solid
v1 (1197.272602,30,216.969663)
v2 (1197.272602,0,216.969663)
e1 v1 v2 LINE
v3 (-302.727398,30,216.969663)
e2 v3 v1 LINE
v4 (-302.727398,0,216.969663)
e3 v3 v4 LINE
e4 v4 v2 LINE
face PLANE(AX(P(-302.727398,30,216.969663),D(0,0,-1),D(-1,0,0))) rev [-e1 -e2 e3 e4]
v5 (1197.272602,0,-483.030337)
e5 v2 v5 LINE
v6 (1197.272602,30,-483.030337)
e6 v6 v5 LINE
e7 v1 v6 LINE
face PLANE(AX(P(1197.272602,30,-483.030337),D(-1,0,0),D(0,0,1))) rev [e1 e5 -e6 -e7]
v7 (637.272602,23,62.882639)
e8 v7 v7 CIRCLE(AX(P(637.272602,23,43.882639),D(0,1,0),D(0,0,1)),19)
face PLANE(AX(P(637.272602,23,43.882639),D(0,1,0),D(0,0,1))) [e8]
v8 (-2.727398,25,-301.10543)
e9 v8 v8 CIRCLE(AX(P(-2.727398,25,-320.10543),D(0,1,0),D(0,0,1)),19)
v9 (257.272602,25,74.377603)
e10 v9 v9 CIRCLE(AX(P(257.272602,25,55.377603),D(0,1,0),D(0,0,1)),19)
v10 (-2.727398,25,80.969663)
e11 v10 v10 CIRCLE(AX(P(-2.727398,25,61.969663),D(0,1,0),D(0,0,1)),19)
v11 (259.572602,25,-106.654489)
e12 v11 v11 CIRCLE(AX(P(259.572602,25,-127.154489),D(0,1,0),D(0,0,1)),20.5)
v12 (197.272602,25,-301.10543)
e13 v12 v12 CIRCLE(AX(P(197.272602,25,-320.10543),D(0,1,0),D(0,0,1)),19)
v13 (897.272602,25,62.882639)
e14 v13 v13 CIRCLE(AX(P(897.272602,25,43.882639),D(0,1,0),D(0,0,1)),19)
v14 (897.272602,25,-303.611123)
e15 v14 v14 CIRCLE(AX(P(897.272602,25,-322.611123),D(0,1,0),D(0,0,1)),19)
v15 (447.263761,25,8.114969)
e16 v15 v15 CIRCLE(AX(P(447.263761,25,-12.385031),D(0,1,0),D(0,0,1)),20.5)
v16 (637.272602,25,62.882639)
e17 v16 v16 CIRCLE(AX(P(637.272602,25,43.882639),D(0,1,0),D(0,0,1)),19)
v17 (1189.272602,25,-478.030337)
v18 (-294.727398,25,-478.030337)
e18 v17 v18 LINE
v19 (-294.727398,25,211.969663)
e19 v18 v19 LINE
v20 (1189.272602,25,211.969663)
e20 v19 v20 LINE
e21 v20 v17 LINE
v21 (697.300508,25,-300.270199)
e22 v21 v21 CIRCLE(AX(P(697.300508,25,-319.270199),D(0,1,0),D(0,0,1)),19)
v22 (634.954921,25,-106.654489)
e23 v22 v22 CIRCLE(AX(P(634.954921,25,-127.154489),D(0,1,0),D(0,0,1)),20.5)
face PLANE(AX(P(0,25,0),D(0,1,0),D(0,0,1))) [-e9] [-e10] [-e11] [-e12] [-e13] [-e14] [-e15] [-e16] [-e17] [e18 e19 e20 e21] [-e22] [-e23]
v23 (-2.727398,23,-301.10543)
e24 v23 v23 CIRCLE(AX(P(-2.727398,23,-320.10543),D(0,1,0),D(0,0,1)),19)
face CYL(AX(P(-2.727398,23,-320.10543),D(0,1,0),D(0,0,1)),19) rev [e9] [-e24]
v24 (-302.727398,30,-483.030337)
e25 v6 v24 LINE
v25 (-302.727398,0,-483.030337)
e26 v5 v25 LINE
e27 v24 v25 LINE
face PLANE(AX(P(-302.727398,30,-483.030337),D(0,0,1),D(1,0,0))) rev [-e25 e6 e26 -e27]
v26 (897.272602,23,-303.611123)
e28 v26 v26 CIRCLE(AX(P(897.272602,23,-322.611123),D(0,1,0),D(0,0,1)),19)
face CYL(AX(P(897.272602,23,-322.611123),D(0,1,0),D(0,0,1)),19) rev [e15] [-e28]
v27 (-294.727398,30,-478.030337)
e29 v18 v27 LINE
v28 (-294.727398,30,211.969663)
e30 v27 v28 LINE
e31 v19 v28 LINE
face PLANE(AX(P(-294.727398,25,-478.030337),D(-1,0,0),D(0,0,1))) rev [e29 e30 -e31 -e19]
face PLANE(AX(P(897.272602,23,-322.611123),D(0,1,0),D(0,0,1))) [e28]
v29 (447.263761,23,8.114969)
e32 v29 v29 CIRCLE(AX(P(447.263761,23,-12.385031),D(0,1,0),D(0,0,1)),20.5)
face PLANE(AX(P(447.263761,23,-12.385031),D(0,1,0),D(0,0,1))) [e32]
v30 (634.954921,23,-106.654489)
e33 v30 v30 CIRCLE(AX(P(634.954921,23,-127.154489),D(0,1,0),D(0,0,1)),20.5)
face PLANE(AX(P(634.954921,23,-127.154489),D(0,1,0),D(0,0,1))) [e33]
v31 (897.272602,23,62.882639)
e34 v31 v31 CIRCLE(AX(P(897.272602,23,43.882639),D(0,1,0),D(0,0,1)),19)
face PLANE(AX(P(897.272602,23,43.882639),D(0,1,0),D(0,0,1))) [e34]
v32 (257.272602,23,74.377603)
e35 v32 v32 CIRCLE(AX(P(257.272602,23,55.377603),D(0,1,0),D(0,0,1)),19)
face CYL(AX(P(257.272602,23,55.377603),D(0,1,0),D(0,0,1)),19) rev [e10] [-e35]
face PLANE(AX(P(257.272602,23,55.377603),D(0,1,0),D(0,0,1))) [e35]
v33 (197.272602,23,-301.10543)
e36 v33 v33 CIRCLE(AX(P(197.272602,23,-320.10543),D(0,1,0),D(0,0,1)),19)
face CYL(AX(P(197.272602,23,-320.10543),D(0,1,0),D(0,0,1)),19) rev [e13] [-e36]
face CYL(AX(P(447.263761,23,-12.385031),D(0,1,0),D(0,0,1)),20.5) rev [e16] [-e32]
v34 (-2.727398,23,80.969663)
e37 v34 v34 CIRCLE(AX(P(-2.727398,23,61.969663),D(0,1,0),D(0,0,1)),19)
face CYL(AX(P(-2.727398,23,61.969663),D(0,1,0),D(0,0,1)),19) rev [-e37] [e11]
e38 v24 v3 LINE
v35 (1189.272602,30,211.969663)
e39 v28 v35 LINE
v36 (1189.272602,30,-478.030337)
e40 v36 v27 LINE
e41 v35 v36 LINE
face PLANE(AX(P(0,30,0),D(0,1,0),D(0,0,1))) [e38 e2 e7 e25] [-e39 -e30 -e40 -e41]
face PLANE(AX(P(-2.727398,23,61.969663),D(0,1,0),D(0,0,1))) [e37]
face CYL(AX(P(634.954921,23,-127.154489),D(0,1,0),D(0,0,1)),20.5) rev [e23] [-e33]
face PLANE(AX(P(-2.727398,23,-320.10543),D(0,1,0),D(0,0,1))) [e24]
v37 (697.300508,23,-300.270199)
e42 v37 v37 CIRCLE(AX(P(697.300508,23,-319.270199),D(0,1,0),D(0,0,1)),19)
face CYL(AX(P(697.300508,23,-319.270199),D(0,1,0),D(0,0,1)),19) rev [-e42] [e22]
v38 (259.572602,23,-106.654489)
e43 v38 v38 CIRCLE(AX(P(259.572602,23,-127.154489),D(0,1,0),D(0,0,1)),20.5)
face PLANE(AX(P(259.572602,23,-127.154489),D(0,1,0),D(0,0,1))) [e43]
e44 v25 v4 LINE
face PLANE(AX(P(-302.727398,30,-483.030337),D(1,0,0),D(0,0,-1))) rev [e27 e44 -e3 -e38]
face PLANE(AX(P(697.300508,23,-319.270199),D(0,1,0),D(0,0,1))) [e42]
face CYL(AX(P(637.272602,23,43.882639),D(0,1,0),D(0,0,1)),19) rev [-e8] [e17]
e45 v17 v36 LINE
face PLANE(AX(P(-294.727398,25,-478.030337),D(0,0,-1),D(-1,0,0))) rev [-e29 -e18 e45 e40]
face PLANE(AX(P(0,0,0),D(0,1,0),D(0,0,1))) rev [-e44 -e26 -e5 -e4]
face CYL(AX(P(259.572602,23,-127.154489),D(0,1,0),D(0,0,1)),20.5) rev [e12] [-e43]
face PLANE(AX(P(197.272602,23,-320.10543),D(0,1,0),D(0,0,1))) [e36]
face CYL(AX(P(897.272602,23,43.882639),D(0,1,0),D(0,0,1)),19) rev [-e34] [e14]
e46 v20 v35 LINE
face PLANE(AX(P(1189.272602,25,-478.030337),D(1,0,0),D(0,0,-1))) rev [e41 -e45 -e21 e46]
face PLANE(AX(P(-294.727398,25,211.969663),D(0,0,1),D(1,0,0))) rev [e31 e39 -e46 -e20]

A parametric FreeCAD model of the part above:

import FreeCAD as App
import Part
import Sketcher

V = App.Vector


def add_polygon(sketch, points):
    """Adds a closed chain of lines whose ends are joined by coincident constraints."""
    first, n = sketch.GeometryCount, len(points)
    for a, b in zip(points, points[1:] + points[:1]):
        sketch.addGeometry(Part.LineSegment(App.Vector(*a, 0), App.Vector(*b, 0)), False)
    for i in range(n):
        sketch.addConstraint(Sketcher.Constraint("Coincident", first + i, 2, first + (i + 1) % n, 1))

doc = App.newDocument("Part")
params = doc.addObject("Spreadsheet::Sheet", "Params")
for row, (alias, value) in enumerate([
    ("sketch1_width", "1500 mm"),
    ("sketch1_height", "700 mm"),
    ("pad1_length", "30 mm"),
    ("sketch2_width", "1484 mm"),
    ("sketch2_height", "690 mm"),
    ("pocket1_length", "5 mm"),
    ("sketch3_diameter", "38 mm"),
    ("sketch3_diameter2", "41 mm"),
    ("pocket2_length", "2 mm"),
], start=1):
    params.set(f"A{row}", alias)
    params.set(f"B{row}", "=" + value)
    params.setAlias(f"B{row}", alias)

body = doc.addObject("PartDesign::Body", "Body")

# Sketch on XZ plane
sketch1 = body.newObject("Sketcher::SketchObject", "Sketch")
sketch1.AttachmentSupport = (doc.getObject("XZ_Plane"), [""])
sketch1.MapMode = "FlatFace"
add_polygon(sketch1, [(-303, -483), (-303, 217), (1197, 217), (1197, -483)])  # lines 0-3
sketch1.addConstraint(Sketcher.Constraint("Vertical", 0))
sketch1.addConstraint(Sketcher.Constraint("Horizontal", 1))
sketch1.addConstraint(Sketcher.Constraint("Vertical", 2))
sketch1.addConstraint(Sketcher.Constraint("Horizontal", 3))
sketch1.addConstraint(Sketcher.Constraint("DistanceX", 1, 1, 1, 2, 1500.0))
sketch1.addConstraint(Sketcher.Constraint("DistanceY", 0, 1, 0, 2, 700.0))
sketch1.addConstraint(Sketcher.Constraint("DistanceX", 0, 2, -1, 1, 302.727398))
sketch1.addConstraint(Sketcher.Constraint("DistanceY", -1, 1, 0, 2, 216.969663))
sketch1.setExpression("Constraints[8]", "Params.sketch1_width")
sketch1.setExpression("Constraints[9]", "Params.sketch1_height")
pad1 = body.newObject("PartDesign::Pad", "Pad")
pad1.Profile = sketch1
pad1.setExpression("Length", "Params.pad1_length")
pad1.Reversed = True

# Sketch on XZ plane
sketch2 = body.newObject("Sketcher::SketchObject", "Sketch001")
sketch2.AttachmentSupport = (doc.getObject("XZ_Plane"), [""])
sketch2.MapMode = "FlatFace"
sketch2.AttachmentOffset = App.Placement(V(0, 0, -30), App.Rotation())
add_polygon(sketch2, [(-295, -478), (-295, 212), (1189, 212), (1189, -478)])  # lines 0-3
sketch2.addConstraint(Sketcher.Constraint("Vertical", 0))
sketch2.addConstraint(Sketcher.Constraint("Horizontal", 1))
sketch2.addConstraint(Sketcher.Constraint("Vertical", 2))
sketch2.addConstraint(Sketcher.Constraint("Horizontal", 3))
sketch2.addConstraint(Sketcher.Constraint("DistanceX", 1, 1, 1, 2, 1484.0))
sketch2.addConstraint(Sketcher.Constraint("DistanceY", 0, 1, 0, 2, 690.0))
sketch2.addConstraint(Sketcher.Constraint("DistanceX", 0, 2, -1, 1, 294.727398))
sketch2.addConstraint(Sketcher.Constraint("DistanceY", -1, 1, 0, 2, 211.969663))
sketch2.setExpression("Constraints[8]", "Params.sketch2_width")
sketch2.setExpression("Constraints[9]", "Params.sketch2_height")
pocket1 = body.newObject("PartDesign::Pocket", "Pocket")
pocket1.Profile = sketch2
pocket1.setExpression("Length", "Params.pocket1_length")
pocket1.Reversed = True

# Sketch on XZ plane
sketch3 = body.newObject("Sketcher::SketchObject", "Sketch002")
sketch3.AttachmentSupport = (doc.getObject("XZ_Plane"), [""])
sketch3.MapMode = "FlatFace"
sketch3.AttachmentOffset = App.Placement(V(0, 0, -25), App.Rotation())
sketch3.addGeometry(Part.Circle(V(197, -320, 0), V(0, 0, 1), 19), False)
sketch3.addGeometry(Part.Circle(V(697, -319, 0), V(0, 0, 1), 19), False)
sketch3.addGeometry(Part.Circle(V(257, 55, 0), V(0, 0, 1), 19), False)
sketch3.addGeometry(Part.Circle(V(637, 44, 0), V(0, 0, 1), 19), False)
sketch3.addGeometry(Part.Circle(V(260, -127, 0), V(0, 0, 1), 20), False)
sketch3.addGeometry(Part.Circle(V(635, -127, 0), V(0, 0, 1), 20), False)
sketch3.addGeometry(Part.Circle(V(447, -12, 0), V(0, 0, 1), 20), False)
sketch3.addGeometry(Part.Circle(V(-3, -320, 0), V(0, 0, 1), 19), False)
sketch3.addGeometry(Part.Circle(V(-3, 62, 0), V(0, 0, 1), 19), False)
sketch3.addGeometry(Part.Circle(V(897, -323, 0), V(0, 0, 1), 19), False)
sketch3.addGeometry(Part.Circle(V(897, 44, 0), V(0, 0, 1), 19), False)
sketch3.addConstraint(Sketcher.Constraint("Equal", 0, 1))
sketch3.addConstraint(Sketcher.Constraint("Equal", 1, 2))
sketch3.addConstraint(Sketcher.Constraint("Equal", 2, 3))
sketch3.addConstraint(Sketcher.Constraint("Equal", 4, 5))
sketch3.addConstraint(Sketcher.Constraint("Equal", 5, 6))
sketch3.addConstraint(Sketcher.Constraint("Equal", 3, 7))
sketch3.addConstraint(Sketcher.Constraint("Equal", 7, 8))
sketch3.addConstraint(Sketcher.Constraint("Equal", 8, 9))
sketch3.addConstraint(Sketcher.Constraint("Equal", 9, 10))
sketch3.addConstraint(Sketcher.Constraint("Horizontal", 4, 3, 5, 3))
sketch3.addConstraint(Sketcher.Constraint("Horizontal", 0, 3, 7, 3))
sketch3.addConstraint(Sketcher.Constraint("Horizontal", 3, 3, 10, 3))
sketch3.addConstraint(Sketcher.Constraint("Vertical", 7, 3, 8, 3))
sketch3.addConstraint(Sketcher.Constraint("Vertical", 9, 3, 10, 3))
sketch3.addConstraint(Sketcher.Constraint("Diameter", 0, 38.0))
sketch3.addConstraint(Sketcher.Constraint("Diameter", 4, 41.0))
sketch3.addConstraint(Sketcher.Constraint("DistanceX", 0, 3, 2, 3, 60.0))
sketch3.addConstraint(Sketcher.Constraint("DistanceX", 2, 3, 3, 3, 380.0))
sketch3.addConstraint(Sketcher.Constraint("DistanceX", 7, 3, 0, 3, 200.0))
sketch3.addConstraint(Sketcher.Constraint("DistanceX", 3, 3, 9, 3, 260.0))
sketch3.addConstraint(Sketcher.Constraint("DistanceX", 2, 3, 4, 3, 2.3))
sketch3.addConstraint(Sketcher.Constraint("DistanceX", -1, 1, 0, 3, 197.272602))
sketch3.addConstraint(Sketcher.Constraint("DistanceY", 1, 3, -1, 1, 319.270199))
sketch3.addConstraint(Sketcher.Constraint("DistanceY", 7, 3, 6, 3, 307.7204))
sketch3.addConstraint(Sketcher.Constraint("DistanceY", 0, 3, -1, 1, 320.10543))
sketch3.addConstraint(Sketcher.Constraint("DistanceX", -1, 1, 1, 3, 697.300508))
sketch3.addConstraint(Sketcher.Constraint("DistanceY", -1, 1, 3, 3, 43.882639))
sketch3.addConstraint(Sketcher.Constraint("DistanceY", 4, 3, -1, 1, 127.154489))
sketch3.addConstraint(Sketcher.Constraint("DistanceX", -1, 1, 5, 3, 634.954921))
sketch3.addConstraint(Sketcher.Constraint("DistanceX", -1, 1, 6, 3, 447.263761))
sketch3.addConstraint(Sketcher.Constraint("DistanceY", 2, 3, 8, 3, 6.59206))
sketch3.addConstraint(Sketcher.Constraint("DistanceY", 9, 3, 3, 3, 366.493761))
sketch3.addConstraint(Sketcher.Constraint("DistanceY", -1, 1, 2, 3, 55.377603))
sketch3.setExpression("Constraints[14]", "Params.sketch3_diameter")
sketch3.setExpression("Constraints[15]", "Params.sketch3_diameter2")
pocket2 = body.newObject("PartDesign::Pocket", "Pocket001")
pocket2.Profile = sketch3
pocket2.setExpression("Length", "Params.pocket2_length")
pocket2.Reversed = True

doc.recompute()
